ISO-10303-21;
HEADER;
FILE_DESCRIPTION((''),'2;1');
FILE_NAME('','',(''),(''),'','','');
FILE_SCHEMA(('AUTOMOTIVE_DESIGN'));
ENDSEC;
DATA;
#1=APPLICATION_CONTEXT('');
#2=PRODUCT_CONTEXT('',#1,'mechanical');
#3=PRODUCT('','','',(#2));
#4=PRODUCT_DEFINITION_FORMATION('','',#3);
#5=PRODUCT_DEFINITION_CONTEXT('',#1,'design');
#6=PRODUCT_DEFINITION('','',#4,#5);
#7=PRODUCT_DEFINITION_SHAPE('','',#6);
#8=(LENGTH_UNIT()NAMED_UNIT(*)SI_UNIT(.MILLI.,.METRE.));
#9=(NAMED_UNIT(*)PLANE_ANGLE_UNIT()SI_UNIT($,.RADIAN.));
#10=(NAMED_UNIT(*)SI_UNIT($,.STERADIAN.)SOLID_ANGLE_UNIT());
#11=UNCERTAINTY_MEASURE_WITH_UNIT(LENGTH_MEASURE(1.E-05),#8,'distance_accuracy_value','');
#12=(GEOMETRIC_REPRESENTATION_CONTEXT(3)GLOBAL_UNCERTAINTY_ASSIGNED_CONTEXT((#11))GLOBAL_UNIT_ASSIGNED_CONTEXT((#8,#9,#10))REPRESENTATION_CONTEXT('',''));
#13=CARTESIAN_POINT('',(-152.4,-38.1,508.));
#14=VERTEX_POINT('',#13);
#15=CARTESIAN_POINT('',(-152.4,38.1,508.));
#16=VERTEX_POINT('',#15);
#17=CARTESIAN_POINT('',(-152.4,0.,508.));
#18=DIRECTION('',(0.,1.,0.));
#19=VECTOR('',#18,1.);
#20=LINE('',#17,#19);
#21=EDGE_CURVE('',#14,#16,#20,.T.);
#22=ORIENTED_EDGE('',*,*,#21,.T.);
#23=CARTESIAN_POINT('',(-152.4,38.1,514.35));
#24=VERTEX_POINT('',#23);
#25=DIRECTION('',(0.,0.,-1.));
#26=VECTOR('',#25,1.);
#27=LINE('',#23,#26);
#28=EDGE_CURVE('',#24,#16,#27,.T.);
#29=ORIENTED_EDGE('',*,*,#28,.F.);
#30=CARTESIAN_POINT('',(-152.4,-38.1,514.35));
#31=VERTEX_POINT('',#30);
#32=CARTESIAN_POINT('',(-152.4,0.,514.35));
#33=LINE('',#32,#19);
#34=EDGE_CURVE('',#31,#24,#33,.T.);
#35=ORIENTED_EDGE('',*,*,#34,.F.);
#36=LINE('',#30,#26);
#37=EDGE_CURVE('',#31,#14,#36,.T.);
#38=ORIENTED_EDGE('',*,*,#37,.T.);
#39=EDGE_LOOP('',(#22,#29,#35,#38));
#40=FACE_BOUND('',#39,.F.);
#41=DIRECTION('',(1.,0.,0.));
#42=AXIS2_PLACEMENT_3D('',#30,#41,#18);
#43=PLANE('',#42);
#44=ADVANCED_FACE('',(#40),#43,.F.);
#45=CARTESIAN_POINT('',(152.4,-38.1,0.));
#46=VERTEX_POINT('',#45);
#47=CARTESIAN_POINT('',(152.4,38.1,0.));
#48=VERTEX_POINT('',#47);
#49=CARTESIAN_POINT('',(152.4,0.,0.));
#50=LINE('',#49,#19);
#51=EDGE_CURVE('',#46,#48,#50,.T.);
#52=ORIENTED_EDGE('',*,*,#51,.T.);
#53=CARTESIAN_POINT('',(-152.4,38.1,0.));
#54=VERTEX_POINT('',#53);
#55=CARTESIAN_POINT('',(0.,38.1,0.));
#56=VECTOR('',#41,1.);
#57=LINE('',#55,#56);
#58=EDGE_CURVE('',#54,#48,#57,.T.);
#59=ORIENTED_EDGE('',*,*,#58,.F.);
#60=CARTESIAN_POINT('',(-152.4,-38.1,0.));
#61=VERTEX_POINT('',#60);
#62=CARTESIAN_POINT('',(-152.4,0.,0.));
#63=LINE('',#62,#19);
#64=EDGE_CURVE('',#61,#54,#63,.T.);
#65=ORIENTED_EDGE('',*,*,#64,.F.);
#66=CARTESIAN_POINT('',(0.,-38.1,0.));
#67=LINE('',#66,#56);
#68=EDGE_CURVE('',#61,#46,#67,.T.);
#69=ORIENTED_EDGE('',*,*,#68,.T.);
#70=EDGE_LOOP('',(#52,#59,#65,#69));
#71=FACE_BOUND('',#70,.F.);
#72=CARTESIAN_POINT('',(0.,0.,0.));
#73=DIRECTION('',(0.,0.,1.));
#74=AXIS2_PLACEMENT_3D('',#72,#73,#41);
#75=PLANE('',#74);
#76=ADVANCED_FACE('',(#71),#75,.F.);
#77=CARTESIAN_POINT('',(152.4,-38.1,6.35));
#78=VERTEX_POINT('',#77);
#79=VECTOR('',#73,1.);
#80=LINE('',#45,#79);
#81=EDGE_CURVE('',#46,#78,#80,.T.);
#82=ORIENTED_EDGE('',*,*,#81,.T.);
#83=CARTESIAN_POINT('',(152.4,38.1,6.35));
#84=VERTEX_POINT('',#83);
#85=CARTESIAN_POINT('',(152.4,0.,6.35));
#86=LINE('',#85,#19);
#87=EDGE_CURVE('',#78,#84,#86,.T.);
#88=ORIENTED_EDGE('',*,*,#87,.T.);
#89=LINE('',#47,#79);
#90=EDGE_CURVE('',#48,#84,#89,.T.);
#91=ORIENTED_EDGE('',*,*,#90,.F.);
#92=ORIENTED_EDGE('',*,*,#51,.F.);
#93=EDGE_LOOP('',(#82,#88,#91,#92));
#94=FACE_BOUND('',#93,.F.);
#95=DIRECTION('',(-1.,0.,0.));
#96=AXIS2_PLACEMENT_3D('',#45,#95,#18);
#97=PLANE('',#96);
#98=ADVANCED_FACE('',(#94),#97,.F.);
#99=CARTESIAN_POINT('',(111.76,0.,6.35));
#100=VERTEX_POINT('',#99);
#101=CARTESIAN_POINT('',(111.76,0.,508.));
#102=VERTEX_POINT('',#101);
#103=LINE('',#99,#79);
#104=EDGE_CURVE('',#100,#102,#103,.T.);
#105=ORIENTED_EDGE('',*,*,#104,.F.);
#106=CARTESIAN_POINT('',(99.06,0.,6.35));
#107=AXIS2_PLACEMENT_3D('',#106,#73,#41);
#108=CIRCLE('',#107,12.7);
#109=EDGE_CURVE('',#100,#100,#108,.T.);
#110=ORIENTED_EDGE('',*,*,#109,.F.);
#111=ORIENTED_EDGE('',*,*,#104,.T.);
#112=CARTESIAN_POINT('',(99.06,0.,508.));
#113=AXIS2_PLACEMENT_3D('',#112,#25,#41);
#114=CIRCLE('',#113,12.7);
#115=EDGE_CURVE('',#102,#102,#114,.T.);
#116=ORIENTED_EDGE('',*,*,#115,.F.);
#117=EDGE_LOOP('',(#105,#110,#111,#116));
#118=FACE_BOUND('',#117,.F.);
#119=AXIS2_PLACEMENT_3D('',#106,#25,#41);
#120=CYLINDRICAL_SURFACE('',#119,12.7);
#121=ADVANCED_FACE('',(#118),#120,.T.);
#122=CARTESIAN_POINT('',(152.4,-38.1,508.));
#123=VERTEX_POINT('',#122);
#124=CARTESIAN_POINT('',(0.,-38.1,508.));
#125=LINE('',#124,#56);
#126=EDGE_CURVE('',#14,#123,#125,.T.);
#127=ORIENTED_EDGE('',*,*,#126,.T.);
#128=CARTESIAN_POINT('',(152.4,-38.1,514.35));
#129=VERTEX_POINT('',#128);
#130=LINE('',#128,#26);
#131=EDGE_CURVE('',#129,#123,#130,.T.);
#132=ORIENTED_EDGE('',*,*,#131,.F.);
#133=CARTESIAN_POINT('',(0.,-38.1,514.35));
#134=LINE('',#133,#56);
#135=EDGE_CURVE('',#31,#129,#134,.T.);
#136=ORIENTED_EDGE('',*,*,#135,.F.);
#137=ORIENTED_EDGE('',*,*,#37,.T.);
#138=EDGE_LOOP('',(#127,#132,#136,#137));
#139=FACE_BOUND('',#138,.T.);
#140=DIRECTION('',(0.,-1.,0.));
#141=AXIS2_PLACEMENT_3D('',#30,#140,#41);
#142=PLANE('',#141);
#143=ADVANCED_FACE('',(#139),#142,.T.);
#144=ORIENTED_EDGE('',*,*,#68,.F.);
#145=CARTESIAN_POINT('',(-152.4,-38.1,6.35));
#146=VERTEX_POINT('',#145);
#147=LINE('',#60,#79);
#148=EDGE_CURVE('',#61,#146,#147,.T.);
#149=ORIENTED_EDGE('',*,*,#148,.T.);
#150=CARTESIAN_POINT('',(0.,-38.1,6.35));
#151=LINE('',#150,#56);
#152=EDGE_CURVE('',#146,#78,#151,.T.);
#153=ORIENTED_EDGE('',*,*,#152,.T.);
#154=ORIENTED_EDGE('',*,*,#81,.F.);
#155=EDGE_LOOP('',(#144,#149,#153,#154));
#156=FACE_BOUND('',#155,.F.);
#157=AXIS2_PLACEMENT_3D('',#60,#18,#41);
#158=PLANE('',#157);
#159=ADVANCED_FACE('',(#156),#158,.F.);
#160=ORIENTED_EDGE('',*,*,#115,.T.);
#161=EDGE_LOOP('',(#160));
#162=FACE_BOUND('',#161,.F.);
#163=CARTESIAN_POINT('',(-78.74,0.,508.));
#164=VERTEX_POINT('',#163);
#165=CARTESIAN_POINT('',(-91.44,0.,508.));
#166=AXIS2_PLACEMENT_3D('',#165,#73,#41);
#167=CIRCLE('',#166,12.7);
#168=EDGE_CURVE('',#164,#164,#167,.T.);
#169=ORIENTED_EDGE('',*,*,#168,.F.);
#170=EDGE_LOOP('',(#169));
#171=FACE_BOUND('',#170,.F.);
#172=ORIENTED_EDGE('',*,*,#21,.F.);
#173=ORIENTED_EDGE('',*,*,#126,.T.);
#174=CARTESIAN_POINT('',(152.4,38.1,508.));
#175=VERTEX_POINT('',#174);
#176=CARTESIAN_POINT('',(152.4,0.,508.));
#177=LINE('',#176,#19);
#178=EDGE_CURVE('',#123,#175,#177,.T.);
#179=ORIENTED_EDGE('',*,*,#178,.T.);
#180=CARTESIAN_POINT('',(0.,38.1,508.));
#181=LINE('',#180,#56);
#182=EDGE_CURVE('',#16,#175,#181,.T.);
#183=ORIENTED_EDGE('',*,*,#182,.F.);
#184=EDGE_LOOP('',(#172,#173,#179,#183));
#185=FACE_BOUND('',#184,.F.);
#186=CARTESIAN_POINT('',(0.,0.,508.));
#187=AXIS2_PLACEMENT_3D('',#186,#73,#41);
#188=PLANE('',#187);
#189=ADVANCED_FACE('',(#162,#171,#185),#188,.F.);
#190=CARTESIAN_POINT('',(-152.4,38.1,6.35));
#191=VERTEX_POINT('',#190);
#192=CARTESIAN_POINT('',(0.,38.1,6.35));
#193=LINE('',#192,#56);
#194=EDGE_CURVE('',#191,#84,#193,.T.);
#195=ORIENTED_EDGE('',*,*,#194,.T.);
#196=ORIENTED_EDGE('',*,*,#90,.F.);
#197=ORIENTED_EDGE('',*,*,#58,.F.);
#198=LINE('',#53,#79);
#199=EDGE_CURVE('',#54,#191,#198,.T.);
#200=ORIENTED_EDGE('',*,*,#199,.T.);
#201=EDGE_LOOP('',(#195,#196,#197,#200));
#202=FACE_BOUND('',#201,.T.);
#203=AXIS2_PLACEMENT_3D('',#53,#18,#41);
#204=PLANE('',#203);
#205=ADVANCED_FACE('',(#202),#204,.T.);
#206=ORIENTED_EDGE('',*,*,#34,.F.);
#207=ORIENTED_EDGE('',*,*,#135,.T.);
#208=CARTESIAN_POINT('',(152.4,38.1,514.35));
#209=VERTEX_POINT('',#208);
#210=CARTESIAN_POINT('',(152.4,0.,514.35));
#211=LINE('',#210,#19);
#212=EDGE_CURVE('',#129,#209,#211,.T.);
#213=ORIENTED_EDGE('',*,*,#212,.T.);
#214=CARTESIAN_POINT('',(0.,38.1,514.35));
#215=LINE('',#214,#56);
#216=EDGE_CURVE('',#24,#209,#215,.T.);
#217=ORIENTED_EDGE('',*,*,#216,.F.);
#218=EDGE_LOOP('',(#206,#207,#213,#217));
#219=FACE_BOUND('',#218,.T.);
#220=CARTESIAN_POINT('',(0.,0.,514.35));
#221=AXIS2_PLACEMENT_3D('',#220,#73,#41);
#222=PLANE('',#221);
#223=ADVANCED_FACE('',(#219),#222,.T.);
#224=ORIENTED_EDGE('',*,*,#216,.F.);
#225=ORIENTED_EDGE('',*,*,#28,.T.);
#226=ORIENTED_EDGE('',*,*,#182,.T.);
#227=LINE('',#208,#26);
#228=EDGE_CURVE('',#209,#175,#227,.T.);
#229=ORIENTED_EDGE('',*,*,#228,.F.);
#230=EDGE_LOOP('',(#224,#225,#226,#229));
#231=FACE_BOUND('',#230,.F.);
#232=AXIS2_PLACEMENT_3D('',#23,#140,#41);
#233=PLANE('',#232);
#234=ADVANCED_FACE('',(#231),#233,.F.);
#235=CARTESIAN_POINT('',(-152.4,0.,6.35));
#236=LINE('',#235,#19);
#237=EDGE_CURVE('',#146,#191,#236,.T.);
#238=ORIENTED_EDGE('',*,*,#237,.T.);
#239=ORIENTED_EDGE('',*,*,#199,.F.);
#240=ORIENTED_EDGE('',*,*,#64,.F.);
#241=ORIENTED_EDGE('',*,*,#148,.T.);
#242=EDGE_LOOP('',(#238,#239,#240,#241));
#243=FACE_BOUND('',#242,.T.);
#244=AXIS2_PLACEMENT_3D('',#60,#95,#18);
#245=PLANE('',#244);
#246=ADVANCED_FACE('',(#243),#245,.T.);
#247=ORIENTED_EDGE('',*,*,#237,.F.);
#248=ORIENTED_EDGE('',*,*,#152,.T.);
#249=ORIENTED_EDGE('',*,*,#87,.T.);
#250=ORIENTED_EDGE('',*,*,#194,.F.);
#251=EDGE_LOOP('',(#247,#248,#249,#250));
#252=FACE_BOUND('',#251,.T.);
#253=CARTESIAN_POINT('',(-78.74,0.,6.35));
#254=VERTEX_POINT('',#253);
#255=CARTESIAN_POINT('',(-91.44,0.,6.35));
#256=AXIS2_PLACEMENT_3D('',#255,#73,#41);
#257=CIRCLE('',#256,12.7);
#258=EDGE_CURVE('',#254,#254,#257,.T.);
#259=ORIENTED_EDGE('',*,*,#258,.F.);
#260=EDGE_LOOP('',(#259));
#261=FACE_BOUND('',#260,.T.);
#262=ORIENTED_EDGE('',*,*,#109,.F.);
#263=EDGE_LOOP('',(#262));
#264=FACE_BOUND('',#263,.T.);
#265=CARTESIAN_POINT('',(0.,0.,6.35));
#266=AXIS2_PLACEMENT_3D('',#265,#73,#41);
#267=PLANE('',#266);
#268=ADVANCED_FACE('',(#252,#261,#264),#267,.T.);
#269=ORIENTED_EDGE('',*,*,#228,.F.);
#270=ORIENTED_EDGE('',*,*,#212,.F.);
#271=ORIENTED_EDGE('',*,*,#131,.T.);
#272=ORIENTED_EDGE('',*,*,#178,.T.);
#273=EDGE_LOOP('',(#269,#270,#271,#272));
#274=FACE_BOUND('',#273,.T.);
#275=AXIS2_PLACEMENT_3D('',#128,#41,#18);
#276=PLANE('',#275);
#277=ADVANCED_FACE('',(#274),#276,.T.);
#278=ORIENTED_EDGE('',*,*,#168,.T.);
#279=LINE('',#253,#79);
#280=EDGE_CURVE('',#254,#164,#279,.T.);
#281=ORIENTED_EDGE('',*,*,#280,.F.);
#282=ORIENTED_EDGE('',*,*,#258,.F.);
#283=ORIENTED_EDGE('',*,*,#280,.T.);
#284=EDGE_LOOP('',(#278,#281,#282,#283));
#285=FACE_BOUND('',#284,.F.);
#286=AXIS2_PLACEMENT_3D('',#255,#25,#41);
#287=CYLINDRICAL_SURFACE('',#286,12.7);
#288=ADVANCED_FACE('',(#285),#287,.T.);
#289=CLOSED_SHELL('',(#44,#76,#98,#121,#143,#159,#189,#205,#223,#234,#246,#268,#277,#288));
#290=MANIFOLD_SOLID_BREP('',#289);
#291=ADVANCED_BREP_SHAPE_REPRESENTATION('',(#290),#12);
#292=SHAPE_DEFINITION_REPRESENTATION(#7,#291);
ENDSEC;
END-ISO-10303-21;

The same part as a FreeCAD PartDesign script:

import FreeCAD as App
import Part
import Sketcher

V = App.Vector
Q = App.Units.Quantity


def add_polygon(sketch, points):
    """Adds a closed chain of lines whose ends are joined by coincident constraints."""
    first, n = sketch.GeometryCount, len(points)
    for a, b in zip(points, points[1:] + points[:1]):
        sketch.addGeometry(Part.LineSegment(App.Vector(*a, 0), App.Vector(*b, 0)), False)
    for i in range(n):
        sketch.addConstraint(Sketcher.Constraint("Coincident", first + i, 2, first + (i + 1) % n, 1))

doc = App.newDocument("Part")
body = doc.addObject("PartDesign::Body", "Body")

# Sketch on XY plane
sketch1 = body.newObject("Sketcher::SketchObject", "Sketch")
sketch1.AttachmentSupport = (doc.getObject("XY_Plane"), [""])
sketch1.MapMode = "FlatFace"
add_polygon(sketch1, [(-152, 38), (-152, -38), (152, -38), (152, 38)])  # lines 0-3
sketch1.addConstraint(Sketcher.Constraint("Vertical", 0))
sketch1.addConstraint(Sketcher.Constraint("Horizontal", 1))
sketch1.addConstraint(Sketcher.Constraint("Vertical", 2))
sketch1.addConstraint(Sketcher.Constraint("Horizontal", 3))
sketch1.addConstraint(Sketcher.Constraint("Symmetric", 0, 2, 2, 2, -1, 1))
sketch1.addConstraint(Sketcher.Constraint("DistanceX", 1, 1, 1, 2, Q("12 in")))
sketch1.addConstraint(Sketcher.Constraint("DistanceY", 0, 2, 0, 1, Q("3 in")))
pad1 = body.newObject("PartDesign::Pad", "Pad")
pad1.Profile = sketch1
pad1.Length = Q("0.25 in")

# Sketch on XY plane
sketch2 = body.newObject("Sketcher::SketchObject", "Sketch001")
sketch2.AttachmentSupport = (doc.getObject("XY_Plane"), [""])
sketch2.MapMode = "FlatFace"
sketch2.AttachmentOffset = App.Placement(V(0, 0, 0.25 * 25.4), App.Rotation())
sketch2.addGeometry(Part.Circle(V(-91, 0, 0), V(0, 0, 1), 13), False)
sketch2.addGeometry(Part.Circle(V(99, 0, 0), V(0, 0, 1), 13), False)
sketch2.addConstraint(Sketcher.Constraint("Equal", 0, 1))
sketch2.addConstraint(Sketcher.Constraint("PointOnObject", 0, 3, -1))
sketch2.addConstraint(Sketcher.Constraint("PointOnObject", 1, 3, -1))
sketch2.addConstraint(Sketcher.Constraint("Diameter", 0, Q("1 in")))
sketch2.addConstraint(Sketcher.Constraint("DistanceX", 0, 3, -1, 1, Q("3.6 in")))
sketch2.addConstraint(Sketcher.Constraint("DistanceX", -1, 1, 1, 3, Q("3.9 in")))
pad2 = body.newObject("PartDesign::Pad", "Pad001")
pad2.Profile = sketch2
pad2.Length = Q("20 in")

# Sketch on XY plane
sketch3 = body.newObject("Sketcher::SketchObject", "Sketch002")
sketch3.AttachmentSupport = (doc.getObject("XY_Plane"), [""])
sketch3.MapMode = "FlatFace"
sketch3.AttachmentOffset = App.Placement(V(0, 0, 20.25 * 25.4), App.Rotation())
add_polygon(sketch3, [(-152, 38), (-152, -38), (152, -38), (152, 38)])  # lines 0-3
sketch3.addGeometry(Part.Circle(V(-91, 0, 0), V(0, 0, 1), 13), False)  # 4
sketch3.addConstraint(Sketcher.Constraint("Vertical", 0))
sketch3.addConstraint(Sketcher.Constraint("Horizontal", 1))
sketch3.addConstraint(Sketcher.Constraint("Vertical", 2))
sketch3.addConstraint(Sketcher.Constraint("Horizontal", 3))
sketch3.addConstraint(Sketcher.Constraint("Symmetric", 0, 2, 2, 2, -1, 1))
sketch3.addConstraint(Sketcher.Constraint("PointOnObject", 4, 3, -1))
sketch3.addConstraint(Sketcher.Constraint("Diameter", 4, Q("1 in")))
sketch3.addConstraint(Sketcher.Constraint("DistanceX", 1, 1, 1, 2, Q("12 in")))
sketch3.addConstraint(Sketcher.Constraint("DistanceY", 0, 2, 0, 1, Q("3 in")))
sketch3.addConstraint(Sketcher.Constraint("DistanceX", 4, 3, -1, 1, Q("3.6 in")))
pad3 = body.newObject("PartDesign::Pad", "Pad002")
pad3.Profile = sketch3
pad3.Length = Q("0.25 in")
pad3.Reversed = True

doc.recompute()
